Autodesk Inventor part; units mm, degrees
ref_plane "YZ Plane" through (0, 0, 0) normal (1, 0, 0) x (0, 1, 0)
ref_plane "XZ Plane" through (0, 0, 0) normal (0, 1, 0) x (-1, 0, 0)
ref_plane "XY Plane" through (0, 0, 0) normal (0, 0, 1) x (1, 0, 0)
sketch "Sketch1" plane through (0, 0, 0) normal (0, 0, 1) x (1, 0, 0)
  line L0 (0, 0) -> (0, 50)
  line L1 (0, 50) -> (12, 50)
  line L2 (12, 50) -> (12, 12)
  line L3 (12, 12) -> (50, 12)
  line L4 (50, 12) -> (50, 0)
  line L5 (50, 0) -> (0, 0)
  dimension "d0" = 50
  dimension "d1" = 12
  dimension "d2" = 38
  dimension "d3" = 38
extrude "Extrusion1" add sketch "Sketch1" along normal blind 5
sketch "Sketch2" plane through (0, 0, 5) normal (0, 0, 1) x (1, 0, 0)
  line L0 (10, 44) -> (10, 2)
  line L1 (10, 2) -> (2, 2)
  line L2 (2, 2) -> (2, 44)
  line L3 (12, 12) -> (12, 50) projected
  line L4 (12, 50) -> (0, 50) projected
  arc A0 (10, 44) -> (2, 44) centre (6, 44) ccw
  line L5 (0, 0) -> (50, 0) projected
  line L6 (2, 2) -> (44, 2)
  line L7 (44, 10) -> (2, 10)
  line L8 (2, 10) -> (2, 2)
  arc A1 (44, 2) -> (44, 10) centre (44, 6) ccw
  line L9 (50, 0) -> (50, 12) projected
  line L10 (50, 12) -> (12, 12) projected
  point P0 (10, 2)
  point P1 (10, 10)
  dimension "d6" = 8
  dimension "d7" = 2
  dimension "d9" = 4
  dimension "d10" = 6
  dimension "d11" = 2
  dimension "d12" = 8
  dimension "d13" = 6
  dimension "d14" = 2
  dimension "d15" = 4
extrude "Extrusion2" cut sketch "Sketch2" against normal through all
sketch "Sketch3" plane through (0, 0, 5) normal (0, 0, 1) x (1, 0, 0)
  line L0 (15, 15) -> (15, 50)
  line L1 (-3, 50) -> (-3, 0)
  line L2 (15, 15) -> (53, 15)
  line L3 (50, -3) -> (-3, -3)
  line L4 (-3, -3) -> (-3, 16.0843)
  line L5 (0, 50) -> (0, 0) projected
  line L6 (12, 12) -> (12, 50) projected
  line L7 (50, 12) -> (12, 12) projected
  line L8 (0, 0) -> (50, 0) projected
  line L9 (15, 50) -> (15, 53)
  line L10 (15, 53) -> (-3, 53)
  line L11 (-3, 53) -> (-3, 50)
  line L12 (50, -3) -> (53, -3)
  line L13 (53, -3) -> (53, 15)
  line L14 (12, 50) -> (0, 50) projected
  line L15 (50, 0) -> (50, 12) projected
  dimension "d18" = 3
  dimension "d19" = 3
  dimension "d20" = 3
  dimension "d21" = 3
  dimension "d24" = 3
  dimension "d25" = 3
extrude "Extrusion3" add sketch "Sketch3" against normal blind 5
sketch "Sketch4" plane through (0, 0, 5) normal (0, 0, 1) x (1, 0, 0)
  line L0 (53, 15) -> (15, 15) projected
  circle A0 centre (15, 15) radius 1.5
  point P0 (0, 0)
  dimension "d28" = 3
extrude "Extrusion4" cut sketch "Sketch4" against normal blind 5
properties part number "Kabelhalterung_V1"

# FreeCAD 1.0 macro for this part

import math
import FreeCAD as App
import Part
import Sketcher


def add_polygon(sketch, points):
    """Adds a closed chain of lines whose ends are joined by coincident constraints."""
    first, n = sketch.GeometryCount, len(points)
    for a, b in zip(points, points[1:] + points[:1]):
        sketch.addGeometry(Part.LineSegment(App.Vector(*a, 0), App.Vector(*b, 0)), False)
    for i in range(n):
        sketch.addConstraint(Sketcher.Constraint("Coincident", first + i, 2, first + (i + 1) % n, 1))

doc = App.newDocument("Part")
params = doc.addObject("Spreadsheet::Sheet", "Params")
for row, (alias, value) in enumerate([
    ("sketch1_width", "50 mm"),
    ("sketch1_width2", "38 mm"),
    ("pad1_length", "5 mm"),
    ("sketch2_radius", "4 mm"),
    ("sketch2_width", "42 mm"),
    ("sketch3_width", "38 mm"),
    ("sketch3_width2", "18 mm"),
    ("pad2_length", "5 mm"),
    ("sketch4_diameter", "3 mm"),
    ("pocket2_length", "5 mm"),
], start=1):
    params.set(f"A{row}", alias)
    params.set(f"B{row}", "=" + value)
    params.setAlias(f"B{row}", alias)

body = doc.addObject("PartDesign::Body", "Body")

sketch1 = body.newObject("Sketcher::SketchObject", "Sketch")
sketch1.AttachmentSupport = (doc.getObject("XY_Plane"), [""])
sketch1.MapMode = "FlatFace"
add_polygon(sketch1, [(0, 50), (0, 0), (50, 0), (50, 12), (12, 12), (12, 50)])
sketch1.addConstraint(Sketcher.Constraint("Vertical", 0))
sketch1.addConstraint(Sketcher.Constraint("Horizontal", 1))
sketch1.addConstraint(Sketcher.Constraint("Vertical", 2))
sketch1.addConstraint(Sketcher.Constraint("Horizontal", 3))
sketch1.addConstraint(Sketcher.Constraint("Vertical", 4))
sketch1.addConstraint(Sketcher.Constraint("Horizontal", 5))
sketch1.addConstraint(Sketcher.Constraint("Coincident", 0, 2, -1, 1))
sketch1.addConstraint(Sketcher.Constraint("Equal", 1, 0))
sketch1.addConstraint(Sketcher.Constraint("Equal", 5, 2))
sketch1.addConstraint(Sketcher.Constraint("DistanceX", 1, 1, 1, 2, 50.0))
sketch1.addConstraint(Sketcher.Constraint("DistanceX", 3, 2, 3, 1, 38.0))
sketch1.setExpression("Constraints[15]", "Params.sketch1_width")
sketch1.setExpression("Constraints[16]", "Params.sketch1_width2")
pad1 = body.newObject("PartDesign::Pad", "Pad")
pad1.Profile = sketch1
pad1.setExpression("Length", "Params.pad1_length")

sketch2 = body.newObject("Sketcher::SketchObject", "Sketch001")
sketch2.AttachmentSupport = (doc.getObject("XY_Plane"), [""])
sketch2.MapMode = "FlatFace"
sketch2.AttachmentOffset = App.Placement(App.Vector(0, 0, 5), App.Rotation())
sketch2.addGeometry(Part.LineSegment(App.Vector(10, 10, 0), App.Vector(10, 44, 0)), False)
sketch2.addGeometry(Part.ArcOfCircle(Part.Circle(App.Vector(6, 44, 0), App.Vector(0, 0, 1), 4), math.radians(0), math.radians(180)), False)
sketch2.addGeometry(Part.LineSegment(App.Vector(2, 44, 0), App.Vector(2, 2, 0)), False)
sketch2.addGeometry(Part.LineSegment(App.Vector(2, 2, 0), App.Vector(44, 2, 0)), False)
sketch2.addGeometry(Part.ArcOfCircle(Part.Circle(App.Vector(44, 6, 0), App.Vector(0, 0, 1), 4), math.radians(-90), math.radians(90)), False)
sketch2.addGeometry(Part.LineSegment(App.Vector(44, 10, 0), App.Vector(10, 10, 0)), False)
sketch2.addConstraint(Sketcher.Constraint("Tangent", 0, 2, 1, 1))
sketch2.addConstraint(Sketcher.Constraint("Tangent", 1, 2, 2, 1))
sketch2.addConstraint(Sketcher.Constraint("Coincident", 2, 2, 3, 1))
sketch2.addConstraint(Sketcher.Constraint("Tangent", 3, 2, 4, 1))
sketch2.addConstraint(Sketcher.Constraint("Tangent", 4, 2, 5, 1))
sketch2.addConstraint(Sketcher.Constraint("Coincident", 5, 2, 0, 1))
sketch2.addConstraint(Sketcher.Constraint("Vertical", 0))
sketch2.addConstraint(Sketcher.Constraint("Vertical", 2))
sketch2.addConstraint(Sketcher.Constraint("Horizontal", 3))
sketch2.addConstraint(Sketcher.Constraint("Horizontal", 5))
sketch2.addConstraint(Sketcher.Constraint("Equal", 1, 4))
sketch2.addConstraint(Sketcher.Constraint("Equal", 5, 0))
sketch2.addConstraint(Sketcher.Constraint("Radius", 1, 4.0))
sketch2.addConstraint(Sketcher.Constraint("DistanceX", -1, 1, 1, 3, 6.0))
sketch2.addConstraint(Sketcher.Constraint("DistanceY", -1, 1, 4, 3, 6.0))
sketch2.addConstraint(Sketcher.Constraint("DistanceX", 3, 1, 3, 2, 42.0))
sketch2.setExpression("Constraints[12]", "Params.sketch2_radius")
sketch2.setExpression("Constraints[15]", "Params.sketch2_width")
pocket1 = body.newObject("PartDesign::Pocket", "Pocket")
pocket1.Profile = sketch2
pocket1.Type = "ThroughAll"

sketch3 = body.newObject("Sketcher::SketchObject", "Sketch002")
sketch3.AttachmentSupport = (doc.getObject("XY_Plane"), [""])
sketch3.MapMode = "FlatFace"
sketch3.AttachmentOffset = App.Placement(App.Vector(0, 0, 5), App.Rotation())
add_polygon(sketch3, [(53, 15), (15, 15), (15, 53), (-3, 53), (-3, -3), (53, -3)])
add_polygon(sketch3, [(0, 0), (0, 50), (12, 50), (12, 12), (50, 12), (50, 0)])
sketch3.addConstraint(Sketcher.Constraint("Horizontal", 0))
sketch3.addConstraint(Sketcher.Constraint("Vertical", 1))
sketch3.addConstraint(Sketcher.Constraint("Horizontal", 2))
sketch3.addConstraint(Sketcher.Constraint("Vertical", 3))
sketch3.addConstraint(Sketcher.Constraint("Horizontal", 4))
sketch3.addConstraint(Sketcher.Constraint("Vertical", 5))
sketch3.addConstraint(Sketcher.Constraint("Vertical", 6))
sketch3.addConstraint(Sketcher.Constraint("Horizontal", 7))
sketch3.addConstraint(Sketcher.Constraint("Vertical", 8))
sketch3.addConstraint(Sketcher.Constraint("Horizontal", 9))
sketch3.addConstraint(Sketcher.Constraint("Vertical", 10))
sketch3.addConstraint(Sketcher.Constraint("Horizontal", 11))
sketch3.addConstraint(Sketcher.Constraint("Coincident", 11, 2, -1, 1))
sketch3.addConstraint(Sketcher.Constraint("Equal", 0, 9))
sketch3.addConstraint(Sketcher.Constraint("Equal", 9, 1))
sketch3.addConstraint(Sketcher.Constraint("Equal", 4, 3))
sketch3.addConstraint(Sketcher.Constraint("Equal", 11, 6))
sketch3.addConstraint(Sketcher.Constraint("Equal", 1, 8))
sketch3.addConstraint(Sketcher.Constraint("DistanceX", 2, 2, -1, 1, 3.0))
sketch3.addConstraint(Sketcher.Constraint("DistanceY", 3, 2, -1, 1, 3.0))
sketch3.addConstraint(Sketcher.Constraint("DistanceY", 6, 2, 2, 2, 3.0))
sketch3.addConstraint(Sketcher.Constraint("DistanceX", 0, 2, 0, 1, 38.0))
sketch3.addConstraint(Sketcher.Constraint("DistanceX", 2, 2, 2, 1, 18.0))
sketch3.setExpression("Constraints[33]", "Params.sketch3_width")
sketch3.setExpression("Constraints[34]", "Params.sketch3_width2")
pad2 = body.newObject("PartDesign::Pad", "Pad001")
pad2.Profile = sketch3
pad2.setExpression("Length", "Params.pad2_length")
pad2.Reversed = True

sketch4 = body.newObject("Sketcher::SketchObject", "Sketch003")
sketch4.AttachmentSupport = (doc.getObject("XY_Plane"), [""])
sketch4.MapMode = "FlatFace"
sketch4.AttachmentOffset = App.Placement(App.Vector(0, 0, 5), App.Rotation())
sketch4.addGeometry(Part.Circle(App.Vector(15, 15, 0), App.Vector(0, 0, 1), 1.5), False)
sketch4.addConstraint(Sketcher.Constraint("Diameter", 0, 3.0))
sketch4.addConstraint(Sketcher.Constraint("DistanceX", -1, 1, 0, 3, 15.0))
sketch4.addConstraint(Sketcher.Constraint("DistanceY", -1, 1, 0, 3, 15.0))
sketch4.setExpression("Constraints[0]", "Params.sketch4_diameter")
pocket2 = body.newObject("PartDesign::Pocket", "Pocket001")
pocket2.Profile = sketch4
pocket2.setExpression("Length", "Params.pocket2_length")

doc.recompute()
